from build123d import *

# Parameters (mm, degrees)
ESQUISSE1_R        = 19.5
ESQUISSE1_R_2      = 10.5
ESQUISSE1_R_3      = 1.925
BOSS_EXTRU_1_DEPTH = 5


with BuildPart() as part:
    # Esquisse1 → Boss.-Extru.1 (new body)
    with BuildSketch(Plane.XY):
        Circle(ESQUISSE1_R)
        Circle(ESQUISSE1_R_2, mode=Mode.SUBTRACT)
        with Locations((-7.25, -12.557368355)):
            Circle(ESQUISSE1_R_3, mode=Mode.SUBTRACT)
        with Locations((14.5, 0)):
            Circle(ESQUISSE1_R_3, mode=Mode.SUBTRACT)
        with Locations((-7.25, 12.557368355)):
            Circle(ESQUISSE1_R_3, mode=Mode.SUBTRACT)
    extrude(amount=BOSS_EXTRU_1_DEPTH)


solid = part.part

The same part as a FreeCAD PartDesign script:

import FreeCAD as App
import Part
import Sketcher

V = App.Vector
Q = App.Units.Quantity

doc = App.newDocument("Part")
body = doc.addObject("PartDesign::Body", "Body")

# Sketch on XY plane
sketch1 = body.newObject("Sketcher::SketchObject", "Sketch")
sketch1.AttachmentSupport = (doc.getObject("XY_Plane"), [""])
sketch1.MapMode = "FlatFace"
sketch1.addGeometry([
    Part.Circle(V(0, 0, 0), V(0, 0, 1), 19.5),  # 0
    Part.Circle(V(-7.2, -12.6, 0), V(0, 0, 1), 1.9),  # 1
    Part.Circle(V(0, 0, 0), V(0, 0, 1), 10.5),  # 2
    Part.Circle(V(-7.2, 12.6, 0), V(0, 0, 1), 1.9),  # 3
    Part.Circle(V(14.5, 0, 0), V(0, 0, 1), 1.9),  # 4
], False)
sketch1.addConstraint([
    Sketcher.Constraint("Coincident", 0, 3, -1, 1),
    Sketcher.Constraint("Coincident", 2, 3, -1, 1),
    Sketcher.Constraint("Equal", 1, 3),
    Sketcher.Constraint("Equal", 3, 4),
    Sketcher.Constraint("Symmetric", 1, 3, 3, 3, -1),
    Sketcher.Constraint("PointOnObject", 4, 3, -1),
    Sketcher.Constraint("Diameter", 0, Q("39 mm")),
    Sketcher.Constraint("Diameter", 2, Q("21 mm")),
    Sketcher.Constraint("Diameter", 1, Q("3.85 mm")),
    Sketcher.Constraint("DistanceX", -1, 1, 4, 3, Q("14.5 mm")),
    Sketcher.Constraint("DistanceX", 1, 3, -1, 1, Q("7.25 mm")),
    Sketcher.Constraint("DistanceY", 1, 3, -1, 1, Q("12.557368 mm")),
])
pad1 = body.newObject("PartDesign::Pad", "Pad")
pad1.Profile = sketch1
pad1.Length = 5

doc.recompute()
